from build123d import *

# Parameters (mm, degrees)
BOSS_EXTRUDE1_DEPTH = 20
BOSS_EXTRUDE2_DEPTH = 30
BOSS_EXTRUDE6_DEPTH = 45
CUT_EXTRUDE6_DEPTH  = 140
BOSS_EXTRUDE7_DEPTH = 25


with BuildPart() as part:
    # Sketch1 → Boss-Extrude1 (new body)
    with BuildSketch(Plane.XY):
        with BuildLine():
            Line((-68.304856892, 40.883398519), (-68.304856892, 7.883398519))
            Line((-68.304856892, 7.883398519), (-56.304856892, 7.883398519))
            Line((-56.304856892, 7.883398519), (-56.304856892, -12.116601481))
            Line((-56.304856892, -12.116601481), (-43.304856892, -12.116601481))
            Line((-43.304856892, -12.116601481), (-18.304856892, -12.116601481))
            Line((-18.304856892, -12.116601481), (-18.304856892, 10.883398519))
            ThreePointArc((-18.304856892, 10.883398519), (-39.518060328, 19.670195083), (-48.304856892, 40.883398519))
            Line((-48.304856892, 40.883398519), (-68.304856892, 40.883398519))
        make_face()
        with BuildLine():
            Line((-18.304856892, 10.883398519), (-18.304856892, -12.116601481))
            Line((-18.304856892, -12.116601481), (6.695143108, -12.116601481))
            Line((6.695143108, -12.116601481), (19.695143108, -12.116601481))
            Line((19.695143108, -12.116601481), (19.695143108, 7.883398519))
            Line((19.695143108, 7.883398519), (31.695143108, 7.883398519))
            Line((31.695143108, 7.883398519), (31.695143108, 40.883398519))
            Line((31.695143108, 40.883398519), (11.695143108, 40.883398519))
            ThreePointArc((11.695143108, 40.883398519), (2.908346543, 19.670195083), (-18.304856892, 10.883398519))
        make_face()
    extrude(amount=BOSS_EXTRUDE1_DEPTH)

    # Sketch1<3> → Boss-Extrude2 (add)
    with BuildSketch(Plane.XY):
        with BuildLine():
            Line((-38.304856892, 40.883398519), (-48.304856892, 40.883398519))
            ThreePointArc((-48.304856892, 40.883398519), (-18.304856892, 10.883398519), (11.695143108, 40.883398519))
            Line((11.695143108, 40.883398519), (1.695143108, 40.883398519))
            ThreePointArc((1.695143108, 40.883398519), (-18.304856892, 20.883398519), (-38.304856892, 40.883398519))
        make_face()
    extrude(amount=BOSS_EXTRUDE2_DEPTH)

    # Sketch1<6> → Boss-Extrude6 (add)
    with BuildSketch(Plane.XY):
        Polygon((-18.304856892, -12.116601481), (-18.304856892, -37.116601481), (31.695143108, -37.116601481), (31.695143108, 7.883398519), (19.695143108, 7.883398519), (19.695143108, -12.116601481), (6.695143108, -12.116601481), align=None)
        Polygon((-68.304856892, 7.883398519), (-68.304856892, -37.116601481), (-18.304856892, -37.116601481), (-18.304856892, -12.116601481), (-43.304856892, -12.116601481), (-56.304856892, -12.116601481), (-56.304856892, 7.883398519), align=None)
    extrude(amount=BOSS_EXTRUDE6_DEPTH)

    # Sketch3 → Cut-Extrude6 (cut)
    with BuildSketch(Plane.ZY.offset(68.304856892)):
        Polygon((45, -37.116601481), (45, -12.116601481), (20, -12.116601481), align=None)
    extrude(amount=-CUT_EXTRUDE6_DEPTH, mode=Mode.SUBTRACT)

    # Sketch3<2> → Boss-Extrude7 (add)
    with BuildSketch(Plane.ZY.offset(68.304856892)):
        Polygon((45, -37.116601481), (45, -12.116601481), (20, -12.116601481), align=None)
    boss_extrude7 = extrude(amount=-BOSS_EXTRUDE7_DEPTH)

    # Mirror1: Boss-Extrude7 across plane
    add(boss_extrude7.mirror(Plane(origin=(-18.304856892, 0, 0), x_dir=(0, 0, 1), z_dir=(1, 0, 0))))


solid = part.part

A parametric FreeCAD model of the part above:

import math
import FreeCAD as App
import Part
import Sketcher
from FreeCAD import Vector


def add_polygon(sketch, points):
    """Adds a closed chain of lines whose ends are joined by coincident constraints."""
    first, n = sketch.GeometryCount, len(points)
    for a, b in zip(points, points[1:] + points[:1]):
        sketch.addGeometry(Part.LineSegment(App.Vector(*a, 0), App.Vector(*b, 0)), False)
    for i in range(n):
        sketch.addConstraint(Sketcher.Constraint("Coincident", first + i, 2, first + (i + 1) % n, 1))

doc = App.newDocument("Part")
body = doc.addObject("PartDesign::Body", "Body")

# Sketch on XY plane
sketch1 = doc.addObject("Sketcher::SketchObject", "Sketch")
body.addObject(sketch1)
sketch1.AttachmentSupport = (doc.XY_Plane, [""])
sketch1.MapMode = "FlatFace"
sketch1.addGeometry([
    Part.LineSegment(Vector(-68, 41, 0), Vector(-68, 8, 0)),  # 0
    Part.LineSegment(Vector(-68, 8, 0), Vector(-56, 8, 0)),  # 1
    Part.LineSegment(Vector(-56, 8, 0), Vector(-56, -12, 0)),  # 2
    Part.LineSegment(Vector(-56, -12, 0), Vector(20, -12, 0)),  # 3
    Part.LineSegment(Vector(20, -12, 0), Vector(20, 8, 0)),  # 4
    Part.LineSegment(Vector(20, 8, 0), Vector(32, 8, 0)),  # 5
    Part.LineSegment(Vector(32, 8, 0), Vector(32, 41, 0)),  # 6
    Part.LineSegment(Vector(32, 41, 0), Vector(12, 41, 0)),  # 7
    Part.ArcOfCircle(Part.Circle(Vector(-18, 41, 0), Vector(0, 0, 1), 30), math.radians(-90), math.radians(0)),  # 8
    Part.ArcOfCircle(Part.Circle(Vector(-18, 41, 0), Vector(0, 0, 1), 30), math.radians(180), math.radians(270)),  # 9
    Part.LineSegment(Vector(-48, 41, 0), Vector(-68, 41, 0)),  # 10
], False)
sketch1.addConstraint([
    Sketcher.Constraint("Coincident", 0, 2, 1, 1),
    Sketcher.Constraint("Coincident", 1, 2, 2, 1),
    Sketcher.Constraint("Coincident", 2, 2, 3, 1),
    Sketcher.Constraint("Coincident", 3, 2, 4, 1),
    Sketcher.Constraint("Coincident", 4, 2, 5, 1),
    Sketcher.Constraint("Coincident", 5, 2, 6, 1),
    Sketcher.Constraint("Coincident", 6, 2, 7, 1),
    Sketcher.Constraint("Coincident", 7, 2, 8, 2),
    Sketcher.Constraint("Tangent", 8, 1, 9, 2),
    Sketcher.Constraint("Coincident", 9, 1, 10, 1),
    Sketcher.Constraint("Coincident", 10, 2, 0, 1),
    Sketcher.Constraint("Vertical", 0),
    Sketcher.Constraint("Horizontal", 1),
    Sketcher.Constraint("Vertical", 2),
    Sketcher.Constraint("Horizontal", 3),
    Sketcher.Constraint("Vertical", 4),
    Sketcher.Constraint("Horizontal", 5),
    Sketcher.Constraint("Vertical", 6),
    Sketcher.Constraint("Horizontal", 7),
    Sketcher.Constraint("Horizontal", 10),
    Sketcher.Constraint("Equal", 8, 9),
    Sketcher.Constraint("Horizontal", 1, 2, 4, 2),
    Sketcher.Constraint("Horizontal", 9, 3, 6, 2),
    Sketcher.Constraint("Horizontal", 7, 2, 9, 1),
    Sketcher.Constraint("Vertical", 9, 3, 8, 1),
    Sketcher.Constraint("Equal", 1, 5),
    Sketcher.Constraint("Equal", 7, 10),
    Sketcher.Constraint("Equal", 10, 2),
    Sketcher.Constraint("Radius", 8, 30.0),
    Sketcher.Constraint("DistanceX", 1, 1, 1, 2, 12.0),
    Sketcher.Constraint("DistanceX", 3, 1, 3, 2, 76.0),
    Sketcher.Constraint("DistanceY", 0, 2, 0, 1, 33.0),
    Sketcher.Constraint("DistanceY", -1, 1, 8, 3, 40.883399),
    Sketcher.Constraint("DistanceX", 8, 3, -1, 1, 18.304857),
])
pad1 = doc.addObject("PartDesign::Pad", "Pad")
body.addObject(pad1)
pad1.Profile = sketch1
pad1.Length = 20

# Sketch on XY plane
sketch2 = doc.addObject("Sketcher::SketchObject", "Sketch001")
body.addObject(sketch2)
sketch2.AttachmentSupport = (doc.XY_Plane, [""])
sketch2.MapMode = "FlatFace"
sketch2.addGeometry([
    Part.LineSegment(Vector(-38, 41, 0), Vector(-48, 41, 0)),
    Part.ArcOfCircle(Part.Circle(Vector(-18, 41, 0), Vector(0, 0, 1), 30), math.radians(180), math.radians(360)),
    Part.LineSegment(Vector(12, 41, 0), Vector(2, 41, 0)),
    Part.ArcOfCircle(Part.Circle(Vector(-18, 41, 0), Vector(0, 0, 1), 20), math.radians(180), math.radians(360)),
], False)
sketch2.addConstraint([
    Sketcher.Constraint("Coincident", 0, 2, 1, 1),
    Sketcher.Constraint("Coincident", 1, 2, 2, 1),
    Sketcher.Constraint("Coincident", 2, 2, 3, 2),
    Sketcher.Constraint("Coincident", 3, 1, 0, 1),
    Sketcher.Constraint("Horizontal", 0),
    Sketcher.Constraint("Horizontal", 2),
    Sketcher.Constraint("Coincident", 3, 3, 1, 3),
    Sketcher.Constraint("Horizontal", 3, 3, 0, 2),
    Sketcher.Constraint("Horizontal", 0, 2, 1, 2),
    Sketcher.Constraint("Radius", 1, 30.0),
    Sketcher.Constraint("Radius", 3, 20.0),
    Sketcher.Constraint("DistanceY", -1, 1, 1, 3, 40.883399),
    Sketcher.Constraint("DistanceX", 1, 3, -1, 1, 18.304857),
])
pad2 = doc.addObject("PartDesign::Pad", "Pad001")
body.addObject(pad2)
pad2.Profile = sketch2
pad2.Length = 30

# Sketch on XY plane
sketch3 = doc.addObject("Sketcher::SketchObject", "Sketch002")
body.addObject(sketch3)
sketch3.AttachmentSupport = (doc.XY_Plane, [""])
sketch3.MapMode = "FlatFace"
add_polygon(sketch3, [(32, -37), (32, 8), (20, 8), (20, -12), (-56, -12), (-56, 8), (-68, 8), (-68, -37)])  # lines 0-7
sketch3.addConstraint([
    Sketcher.Constraint("Vertical", 0),
    Sketcher.Constraint("Horizontal", 1),
    Sketcher.Constraint("Vertical", 2),
    Sketcher.Constraint("Horizontal", 3),
    Sketcher.Constraint("Vertical", 4),
    Sketcher.Constraint("Horizontal", 5),
    Sketcher.Constraint("Vertical", 6),
    Sketcher.Constraint("Horizontal", 7),
    Sketcher.Constraint("Horizontal", 1, 2, 4, 2),
    Sketcher.Constraint("Equal", 1, 5),
    Sketcher.Constraint("DistanceX", 1, 2, 1, 1, 12.0),
    Sketcher.Constraint("DistanceX", 3, 2, 3, 1, 76.0),
    Sketcher.Constraint("DistanceY", 0, 1, 0, 2, 45.0),
    Sketcher.Constraint("DistanceY", 2, 2, 2, 1, 20.0),
    Sketcher.Constraint("DistanceY", -1, 1, 0, 2, 7.883399),
    Sketcher.Constraint("DistanceX", -1, 1, 0, 2, 31.695143),
])
pad3 = doc.addObject("PartDesign::Pad", "Pad002")
body.addObject(pad3)
pad3.Profile = sketch3
pad3.Length = 45

# Sketch on YZ plane
sketch4 = doc.addObject("Sketcher::SketchObject", "Sketch003")
body.addObject(sketch4)
sketch4.AttachmentSupport = (doc.YZ_Plane, [""])
sketch4.MapMode = "FlatFace"
sketch4.AttachmentOffset = App.Placement(Vector(0, 0, -68.304857), App.Rotation())
add_polygon(sketch4, [(-37, 45), (-12, 45), (-12, 20)])  # lines 0-2
sketch4.addConstraint([
    Sketcher.Constraint("Horizontal", 0),
    Sketcher.Constraint("Vertical", 1),
    Sketcher.Constraint("Equal", 0, 1),
    Sketcher.Constraint("DistanceX", 0, 1, 0, 2, 25.0),
    Sketcher.Constraint("DistanceY", -1, 1, 0, 2, 45.0),
    Sketcher.Constraint("DistanceX", 0, 2, -1, 1, 12.116601),
])
pocket1 = doc.addObject("PartDesign::Pocket", "Pocket")
body.addObject(pocket1)
pocket1.Profile = sketch4
pocket1.Length = 140
pocket1.Reversed = True

# Sketch on YZ plane
sketch5 = doc.addObject("Sketcher::SketchObject", "Sketch004")
body.addObject(sketch5)
sketch5.AttachmentSupport = (doc.YZ_Plane, [""])
sketch5.MapMode = "FlatFace"
sketch5.AttachmentOffset = App.Placement(Vector(0, 0, -68.304857), App.Rotation())
add_polygon(sketch5, [(-37, 45), (-12, 45), (-12, 20)])  # lines 0-2
sketch5.addConstraint([
    Sketcher.Constraint("Horizontal", 0),
    Sketcher.Constraint("Vertical", 1),
    Sketcher.Constraint("Equal", 0, 1),
    Sketcher.Constraint("DistanceX", 0, 1, 0, 2, 25.0),
    Sketcher.Constraint("DistanceY", -1, 1, 0, 2, 45.0),
    Sketcher.Constraint("DistanceX", 0, 2, -1, 1, 12.116601),
])
pad4 = doc.addObject("PartDesign::Pad", "Pad003")
body.addObject(pad4)
pad4.Profile = sketch5
pad4.Length = 25
doc.recompute()

datumplane = doc.addObject("PartDesign::Plane", "DatumPlane")
body.addObject(datumplane)
datumplane.AttachmentSupport = (doc.YZ_Plane, [""])
datumplane.MapMode = "FlatFace"
datumplane.AttachmentOffset = App.Placement(Vector(0, 0, -18.304857), App.Rotation())
mirrored = doc.addObject("PartDesign::Mirrored", "Mirrored")
body.addObject(mirrored)
mirrored.Originals = [pad4]
mirrored.MirrorPlane = (datumplane, [""])
body.Tip = mirrored

doc.recompute()
